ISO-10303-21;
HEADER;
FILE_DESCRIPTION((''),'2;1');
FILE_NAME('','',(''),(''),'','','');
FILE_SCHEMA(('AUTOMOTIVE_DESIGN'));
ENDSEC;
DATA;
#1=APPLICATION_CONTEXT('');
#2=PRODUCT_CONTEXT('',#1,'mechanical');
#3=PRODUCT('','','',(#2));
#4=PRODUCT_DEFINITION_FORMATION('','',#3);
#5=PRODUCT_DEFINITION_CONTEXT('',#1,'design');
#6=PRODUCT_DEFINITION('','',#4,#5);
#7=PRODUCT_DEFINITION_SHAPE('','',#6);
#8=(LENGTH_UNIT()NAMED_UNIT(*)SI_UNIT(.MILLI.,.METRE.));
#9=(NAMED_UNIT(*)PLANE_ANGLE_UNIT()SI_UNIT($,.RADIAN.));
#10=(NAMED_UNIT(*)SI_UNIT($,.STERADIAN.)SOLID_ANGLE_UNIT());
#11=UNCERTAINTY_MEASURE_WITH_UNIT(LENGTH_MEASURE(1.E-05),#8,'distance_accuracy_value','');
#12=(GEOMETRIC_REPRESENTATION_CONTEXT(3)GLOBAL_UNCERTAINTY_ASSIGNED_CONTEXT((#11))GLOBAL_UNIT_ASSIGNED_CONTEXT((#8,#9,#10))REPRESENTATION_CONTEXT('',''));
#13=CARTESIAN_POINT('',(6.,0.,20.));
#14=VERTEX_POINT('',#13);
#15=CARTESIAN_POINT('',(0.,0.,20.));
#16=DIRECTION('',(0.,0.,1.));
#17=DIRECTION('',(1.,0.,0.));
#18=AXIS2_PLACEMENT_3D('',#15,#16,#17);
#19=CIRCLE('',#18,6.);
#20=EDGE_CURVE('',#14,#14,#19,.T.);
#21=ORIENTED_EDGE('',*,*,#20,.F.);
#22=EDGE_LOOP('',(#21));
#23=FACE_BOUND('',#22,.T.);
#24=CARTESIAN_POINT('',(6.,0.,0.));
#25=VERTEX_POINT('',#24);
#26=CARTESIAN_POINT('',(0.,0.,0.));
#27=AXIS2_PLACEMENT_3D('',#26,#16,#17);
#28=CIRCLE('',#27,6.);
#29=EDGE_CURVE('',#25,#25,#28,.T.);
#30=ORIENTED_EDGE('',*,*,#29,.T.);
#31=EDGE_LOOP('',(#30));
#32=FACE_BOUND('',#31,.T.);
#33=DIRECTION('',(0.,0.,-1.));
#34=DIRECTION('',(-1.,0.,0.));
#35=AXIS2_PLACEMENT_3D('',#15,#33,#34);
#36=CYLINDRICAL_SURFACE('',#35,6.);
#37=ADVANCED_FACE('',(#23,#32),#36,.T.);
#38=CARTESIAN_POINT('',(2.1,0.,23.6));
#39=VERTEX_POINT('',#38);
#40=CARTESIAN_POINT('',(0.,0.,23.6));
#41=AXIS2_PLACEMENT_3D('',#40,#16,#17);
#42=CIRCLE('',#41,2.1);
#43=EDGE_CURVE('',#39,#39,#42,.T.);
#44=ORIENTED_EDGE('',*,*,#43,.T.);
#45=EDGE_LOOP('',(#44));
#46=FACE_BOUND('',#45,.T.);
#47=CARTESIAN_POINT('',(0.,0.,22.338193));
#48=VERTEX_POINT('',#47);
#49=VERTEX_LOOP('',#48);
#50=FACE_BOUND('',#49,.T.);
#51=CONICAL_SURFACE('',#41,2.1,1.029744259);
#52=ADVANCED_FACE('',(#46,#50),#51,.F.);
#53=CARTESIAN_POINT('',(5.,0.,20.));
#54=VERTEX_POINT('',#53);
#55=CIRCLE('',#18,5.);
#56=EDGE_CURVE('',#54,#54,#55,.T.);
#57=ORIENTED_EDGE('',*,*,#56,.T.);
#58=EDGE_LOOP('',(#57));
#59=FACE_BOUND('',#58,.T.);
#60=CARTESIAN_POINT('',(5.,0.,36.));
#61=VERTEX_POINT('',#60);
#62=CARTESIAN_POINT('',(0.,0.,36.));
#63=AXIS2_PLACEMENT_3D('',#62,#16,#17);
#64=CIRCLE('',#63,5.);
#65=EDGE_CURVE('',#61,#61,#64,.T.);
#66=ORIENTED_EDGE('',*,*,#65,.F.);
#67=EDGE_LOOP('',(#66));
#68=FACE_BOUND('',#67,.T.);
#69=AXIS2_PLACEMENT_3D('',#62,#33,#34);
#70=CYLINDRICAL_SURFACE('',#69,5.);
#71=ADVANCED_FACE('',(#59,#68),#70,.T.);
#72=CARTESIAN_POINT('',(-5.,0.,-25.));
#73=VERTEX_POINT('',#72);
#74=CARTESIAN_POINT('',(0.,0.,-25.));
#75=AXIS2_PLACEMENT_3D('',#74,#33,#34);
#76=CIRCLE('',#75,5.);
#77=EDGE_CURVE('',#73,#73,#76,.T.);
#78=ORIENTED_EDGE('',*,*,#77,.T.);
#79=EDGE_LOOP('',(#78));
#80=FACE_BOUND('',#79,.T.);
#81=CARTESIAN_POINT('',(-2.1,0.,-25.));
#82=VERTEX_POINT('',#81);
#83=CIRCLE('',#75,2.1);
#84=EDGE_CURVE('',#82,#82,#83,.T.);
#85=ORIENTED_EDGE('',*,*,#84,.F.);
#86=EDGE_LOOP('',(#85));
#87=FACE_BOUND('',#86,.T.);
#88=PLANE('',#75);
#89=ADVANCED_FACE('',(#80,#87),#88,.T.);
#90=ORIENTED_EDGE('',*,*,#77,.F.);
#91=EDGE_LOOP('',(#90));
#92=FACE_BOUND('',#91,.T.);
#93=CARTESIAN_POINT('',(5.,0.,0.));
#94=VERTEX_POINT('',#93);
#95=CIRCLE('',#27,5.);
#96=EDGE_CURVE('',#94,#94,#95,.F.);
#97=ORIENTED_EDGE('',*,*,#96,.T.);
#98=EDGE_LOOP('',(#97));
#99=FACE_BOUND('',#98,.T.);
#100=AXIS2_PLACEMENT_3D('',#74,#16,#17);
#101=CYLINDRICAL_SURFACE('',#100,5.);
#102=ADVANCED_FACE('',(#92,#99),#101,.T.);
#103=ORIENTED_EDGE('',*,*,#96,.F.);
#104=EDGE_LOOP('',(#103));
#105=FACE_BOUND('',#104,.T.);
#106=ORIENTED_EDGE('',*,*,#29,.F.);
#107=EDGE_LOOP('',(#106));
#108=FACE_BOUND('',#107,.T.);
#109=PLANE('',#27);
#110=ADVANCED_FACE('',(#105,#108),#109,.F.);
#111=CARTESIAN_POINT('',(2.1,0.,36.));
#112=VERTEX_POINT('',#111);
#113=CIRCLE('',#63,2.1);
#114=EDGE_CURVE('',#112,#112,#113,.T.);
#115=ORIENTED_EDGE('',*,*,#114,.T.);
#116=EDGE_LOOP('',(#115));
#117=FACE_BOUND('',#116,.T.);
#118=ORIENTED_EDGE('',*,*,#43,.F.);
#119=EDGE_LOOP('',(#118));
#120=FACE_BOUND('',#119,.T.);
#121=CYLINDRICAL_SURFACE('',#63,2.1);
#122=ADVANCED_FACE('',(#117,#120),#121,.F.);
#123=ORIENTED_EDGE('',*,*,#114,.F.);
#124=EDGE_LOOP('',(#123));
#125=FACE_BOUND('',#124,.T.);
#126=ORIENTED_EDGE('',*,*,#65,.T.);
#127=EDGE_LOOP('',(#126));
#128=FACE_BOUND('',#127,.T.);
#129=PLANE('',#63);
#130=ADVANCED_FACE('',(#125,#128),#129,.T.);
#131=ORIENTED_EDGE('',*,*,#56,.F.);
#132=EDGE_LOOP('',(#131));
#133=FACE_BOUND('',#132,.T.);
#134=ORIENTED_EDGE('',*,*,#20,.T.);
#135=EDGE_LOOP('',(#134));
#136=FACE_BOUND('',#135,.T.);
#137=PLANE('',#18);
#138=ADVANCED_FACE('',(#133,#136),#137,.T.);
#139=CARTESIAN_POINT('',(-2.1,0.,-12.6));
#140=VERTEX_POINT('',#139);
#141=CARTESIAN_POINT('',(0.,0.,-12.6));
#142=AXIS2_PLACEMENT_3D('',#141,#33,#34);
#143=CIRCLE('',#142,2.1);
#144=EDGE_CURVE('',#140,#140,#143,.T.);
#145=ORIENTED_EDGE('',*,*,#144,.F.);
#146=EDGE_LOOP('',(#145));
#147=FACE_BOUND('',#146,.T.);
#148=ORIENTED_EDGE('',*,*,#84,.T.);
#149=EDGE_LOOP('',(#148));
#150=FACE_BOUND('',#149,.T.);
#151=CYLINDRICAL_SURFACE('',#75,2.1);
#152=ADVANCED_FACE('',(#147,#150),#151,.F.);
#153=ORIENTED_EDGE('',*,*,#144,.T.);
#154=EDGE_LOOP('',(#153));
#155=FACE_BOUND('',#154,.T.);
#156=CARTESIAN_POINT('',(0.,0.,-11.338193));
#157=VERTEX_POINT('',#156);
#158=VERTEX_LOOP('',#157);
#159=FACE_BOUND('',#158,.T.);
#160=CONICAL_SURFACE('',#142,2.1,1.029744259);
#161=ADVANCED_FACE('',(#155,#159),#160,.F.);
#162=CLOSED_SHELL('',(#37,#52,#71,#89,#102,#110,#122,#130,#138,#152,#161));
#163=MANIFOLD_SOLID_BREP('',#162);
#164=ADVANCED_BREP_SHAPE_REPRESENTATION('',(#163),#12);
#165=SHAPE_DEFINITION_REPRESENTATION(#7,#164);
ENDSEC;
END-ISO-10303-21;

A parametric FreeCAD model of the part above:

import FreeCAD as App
import Part
import Sketcher
Q = App.Units.Quantity

doc = App.newDocument("Part")
body = doc.addObject("PartDesign::Body", "Body")

# Sketch on XY plane
sketch1 = body.newObject("Sketcher::SketchObject", "Sketch")
sketch1.AttachmentSupport = (doc.getObject("XY_Plane"), [""])
sketch1.MapMode = "FlatFace"
sketch1.addGeometry(Part.Circle(App.Vector(0, 0, 0), App.Vector(0, 0, 1), 6), False)
sketch1.addConstraint([
    Sketcher.Constraint("Coincident", 0, 3, -1, 1),
    Sketcher.Constraint("Diameter", 0, Q("12 mm")),
])
pad1 = body.newObject("PartDesign::Pad", "Pad")
pad1.Profile = sketch1
pad1.Length = 20

# Sketch on XY plane
sketch2 = body.newObject("Sketcher::SketchObject", "Sketch001")
sketch2.AttachmentSupport = (doc.getObject("XY_Plane"), [""])
sketch2.MapMode = "FlatFace"
sketch2.AttachmentOffset = App.Placement(App.Vector(0, 0, 20), App.Rotation())
sketch2.addGeometry(Part.Circle(App.Vector(0, 0, 0), App.Vector(0, 0, 1), 5), False)
sketch2.addConstraint([
    Sketcher.Constraint("Coincident", 0, 3, -1, 1),
    Sketcher.Constraint("Diameter", 0, Q("10 mm")),
])
pad2 = body.newObject("PartDesign::Pad", "Pad001")
pad2.Profile = sketch2
pad2.Length = 16

# Sketch on XY plane
sketch3 = body.newObject("Sketcher::SketchObject", "Sketch002")
sketch3.AttachmentSupport = (doc.getObject("XY_Plane"), [""])
sketch3.MapMode = "FlatFace"
sketch3.AttachmentOffset = App.Placement(App.Vector(0, 0, -25), App.Rotation())
sketch3.addGeometry(Part.Circle(App.Vector(0, 0, 0), App.Vector(0, 0, 1), 5), False)
sketch3.addConstraint([
    Sketcher.Constraint("Coincident", 0, 3, -1, 1),
    Sketcher.Constraint("Diameter", 0, Q("10 mm")),
])
pad3 = body.newObject("PartDesign::Pad", "Pad002")
pad3.Profile = sketch3
pad3.Length = 25

# Sketch on XY plane
sketch4 = body.newObject("Sketcher::SketchObject", "Sketch003")
sketch4.AttachmentSupport = (doc.getObject("XY_Plane"), [""])
sketch4.MapMode = "FlatFace"
sketch4.AttachmentOffset = App.Placement(App.Vector(0, 0, -25), App.Rotation())
sketch4.addGeometry(Part.Circle(App.Vector(0, 0, 0), App.Vector(0, 0, 1), 2.1), False)
sketch4.addConstraint([
    Sketcher.Constraint("Coincident", 0, 3, -1, 1),
    Sketcher.Constraint("Diameter", 0, Q("4.2 mm")),
])
doc.recompute()
hole = body.newObject("PartDesign::Hole", "Hole")
hole.Profile = sketch4
hole.ThreadType = "None"
hole.Diameter = 4.2
hole.DepthType = "Dimension"
hole.Depth = 12.4
hole.DrillPoint = "Angled"
hole.DrillPointAngle = 118
hole.Reversed = True

# Sketch on XY plane
sketch5 = body.newObject("Sketcher::SketchObject", "Sketch004")
sketch5.AttachmentSupport = (doc.getObject("XY_Plane"), [""])
sketch5.MapMode = "FlatFace"
sketch5.AttachmentOffset = App.Placement(App.Vector(0, 0, 36), App.Rotation())
sketch5.addGeometry(Part.Circle(App.Vector(0, 0, 0), App.Vector(0, 0, 1), 2.1), False)
sketch5.addConstraint([
    Sketcher.Constraint("Coincident", 0, 3, -1, 1),
    Sketcher.Constraint("Diameter", 0, Q("4.2 mm")),
])
doc.recompute()
hole2 = body.newObject("PartDesign::Hole", "Hole001")
hole2.Profile = sketch5
hole2.ThreadType = "None"
hole2.Diameter = 4.2
hole2.DepthType = "Dimension"
hole2.Depth = 12.4
hole2.DrillPoint = "Angled"
hole2.DrillPointAngle = 118

doc.recompute()
